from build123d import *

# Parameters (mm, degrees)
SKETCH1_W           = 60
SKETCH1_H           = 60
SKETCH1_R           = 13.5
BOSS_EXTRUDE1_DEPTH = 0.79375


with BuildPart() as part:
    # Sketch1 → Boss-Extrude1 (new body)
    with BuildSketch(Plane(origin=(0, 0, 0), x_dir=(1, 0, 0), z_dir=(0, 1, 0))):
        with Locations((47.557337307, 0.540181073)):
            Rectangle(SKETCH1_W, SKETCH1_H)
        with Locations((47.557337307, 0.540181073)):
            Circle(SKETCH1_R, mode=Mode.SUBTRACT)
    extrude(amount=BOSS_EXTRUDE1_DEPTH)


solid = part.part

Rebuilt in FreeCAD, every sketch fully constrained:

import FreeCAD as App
import Part
import Sketcher
from FreeCAD import Vector


def add_polygon(sketch, points):
    """Adds a closed chain of lines whose ends are joined by coincident constraints."""
    first, n = sketch.GeometryCount, len(points)
    for a, b in zip(points, points[1:] + points[:1]):
        sketch.addGeometry(Part.LineSegment(App.Vector(*a, 0), App.Vector(*b, 0)), False)
    for i in range(n):
        sketch.addConstraint(Sketcher.Constraint("Coincident", first + i, 2, first + (i + 1) % n, 1))

doc = App.newDocument("Part")
body = doc.addObject("PartDesign::Body", "Body")

# Sketch on XZ plane
sketch1 = body.newObject("Sketcher::SketchObject", "Sketch")
sketch1.AttachmentSupport = (doc.getObject("XZ_Plane"), [""])
sketch1.MapMode = "FlatFace"
add_polygon(sketch1, [(18, -31), (18, 29), (78, 29), (78, -31)])  # lines 0-3
sketch1.addGeometry(Part.Circle(Vector(48, -1, 0), Vector(0, 0, 1), 14), False)  # 4
sketch1.addConstraint([
    Sketcher.Constraint("Vertical", 0),
    Sketcher.Constraint("Horizontal", 1),
    Sketcher.Constraint("Vertical", 2),
    Sketcher.Constraint("Horizontal", 3),
    Sketcher.Constraint("Equal", 3, 0),
    Sketcher.Constraint("Diameter", 4, 27.0),
    Sketcher.Constraint("DistanceX", 1, 1, 1, 2, 60.0),
    Sketcher.Constraint("DistanceX", 0, 2, 4, 3, 30.0),
    Sketcher.Constraint("DistanceY", 4, 3, 0, 2, 30.0),
    Sketcher.Constraint("DistanceY", 4, 3, -1, 1, 0.540181),
    Sketcher.Constraint("DistanceX", -1, 1, 4, 3, 47.557337),
])
pad1 = body.newObject("PartDesign::Pad", "Pad")
pad1.Profile = sketch1
pad1.Length = 0.79375
pad1.Reversed = True

doc.recompute()
